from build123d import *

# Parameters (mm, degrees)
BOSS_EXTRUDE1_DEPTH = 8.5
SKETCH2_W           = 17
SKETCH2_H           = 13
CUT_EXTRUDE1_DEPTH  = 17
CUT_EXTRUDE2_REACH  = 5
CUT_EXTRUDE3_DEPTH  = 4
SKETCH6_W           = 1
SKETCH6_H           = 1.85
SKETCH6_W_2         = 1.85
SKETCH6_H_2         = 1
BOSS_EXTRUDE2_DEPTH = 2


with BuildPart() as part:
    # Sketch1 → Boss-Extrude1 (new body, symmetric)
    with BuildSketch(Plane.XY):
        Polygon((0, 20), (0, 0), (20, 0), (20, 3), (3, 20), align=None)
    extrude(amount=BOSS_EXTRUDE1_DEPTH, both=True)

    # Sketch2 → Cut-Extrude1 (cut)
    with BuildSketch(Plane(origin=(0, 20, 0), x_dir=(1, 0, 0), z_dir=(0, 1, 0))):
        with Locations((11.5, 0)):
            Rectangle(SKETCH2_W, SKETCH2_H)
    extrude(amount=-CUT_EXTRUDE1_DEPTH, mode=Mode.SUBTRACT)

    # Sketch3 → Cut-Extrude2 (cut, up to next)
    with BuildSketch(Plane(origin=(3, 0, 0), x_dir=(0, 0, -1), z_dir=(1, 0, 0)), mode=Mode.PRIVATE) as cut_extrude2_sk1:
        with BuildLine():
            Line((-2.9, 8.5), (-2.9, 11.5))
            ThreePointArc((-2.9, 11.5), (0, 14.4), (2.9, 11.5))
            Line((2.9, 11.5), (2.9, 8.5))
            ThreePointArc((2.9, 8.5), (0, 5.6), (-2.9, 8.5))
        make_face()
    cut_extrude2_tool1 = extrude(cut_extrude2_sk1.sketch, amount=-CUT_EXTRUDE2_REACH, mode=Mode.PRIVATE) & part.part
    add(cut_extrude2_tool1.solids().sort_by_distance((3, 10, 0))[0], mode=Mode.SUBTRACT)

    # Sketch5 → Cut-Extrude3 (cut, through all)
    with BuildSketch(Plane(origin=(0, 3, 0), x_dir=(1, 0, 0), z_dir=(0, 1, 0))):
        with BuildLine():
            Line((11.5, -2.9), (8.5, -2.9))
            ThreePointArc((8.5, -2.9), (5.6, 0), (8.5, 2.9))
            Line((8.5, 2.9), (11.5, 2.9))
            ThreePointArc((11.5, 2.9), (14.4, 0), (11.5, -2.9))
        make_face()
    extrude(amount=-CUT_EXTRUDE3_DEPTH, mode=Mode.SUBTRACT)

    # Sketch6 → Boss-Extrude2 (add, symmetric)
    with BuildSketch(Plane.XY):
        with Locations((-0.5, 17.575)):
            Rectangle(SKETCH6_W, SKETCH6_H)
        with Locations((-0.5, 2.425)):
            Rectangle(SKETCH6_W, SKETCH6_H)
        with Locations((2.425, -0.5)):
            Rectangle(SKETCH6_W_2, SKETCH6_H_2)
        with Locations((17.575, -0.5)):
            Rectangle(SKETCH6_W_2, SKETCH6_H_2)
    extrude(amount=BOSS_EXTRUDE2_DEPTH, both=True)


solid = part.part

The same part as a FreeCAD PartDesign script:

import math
import FreeCAD as App
import Part
import Sketcher

V = App.Vector


def add_polygon(sketch, points):
    """Adds a closed chain of lines whose ends are joined by coincident constraints."""
    first, n = sketch.GeometryCount, len(points)
    for a, b in zip(points, points[1:] + points[:1]):
        sketch.addGeometry(Part.LineSegment(App.Vector(*a, 0), App.Vector(*b, 0)), False)
    for i in range(n):
        sketch.addConstraint(Sketcher.Constraint("Coincident", first + i, 2, first + (i + 1) % n, 1))

doc = App.newDocument("Part")
body = doc.addObject("PartDesign::Body", "Body")

# Sketch on XY plane
sketch1 = doc.addObject("Sketcher::SketchObject", "Sketch")
body.addObject(sketch1)
sketch1.AttachmentSupport = (doc.XY_Plane, [""])
sketch1.MapMode = "FlatFace"
add_polygon(sketch1, [(0, 20), (0, 0), (20, 0), (20, 3), (3, 20)])  # lines 0-4
sketch1.addConstraint(Sketcher.Constraint("Vertical", 0))
sketch1.addConstraint(Sketcher.Constraint("Horizontal", 1))
sketch1.addConstraint(Sketcher.Constraint("Vertical", 2))
sketch1.addConstraint(Sketcher.Constraint("Horizontal", 4))
sketch1.addConstraint(Sketcher.Constraint("Coincident", 0, 2, -1, 1))
sketch1.addConstraint(Sketcher.Constraint("Equal", 1, 0))
sketch1.addConstraint(Sketcher.Constraint("Equal", 4, 2))
sketch1.addConstraint(Sketcher.Constraint("DistanceX", 1, 1, 1, 2, 20.0))
sketch1.addConstraint(Sketcher.Constraint("DistanceX", 4, 2, 4, 1, 3.0))
pad1 = doc.addObject("PartDesign::Pad", "Pad")
body.addObject(pad1)
pad1.Profile = sketch1
pad1.Length = 17
pad1.Midplane = True

# Sketch on XZ plane
sketch2 = doc.addObject("Sketcher::SketchObject", "Sketch001")
body.addObject(sketch2)
sketch2.AttachmentSupport = (doc.XZ_Plane, [""])
sketch2.MapMode = "FlatFace"
sketch2.AttachmentOffset = App.Placement(V(0, 0, -20), App.Rotation())
add_polygon(sketch2, [(3, -6), (3, 6), (20, 6), (20, -6)])  # lines 0-3
sketch2.addConstraint(Sketcher.Constraint("Vertical", 0))
sketch2.addConstraint(Sketcher.Constraint("Horizontal", 1))
sketch2.addConstraint(Sketcher.Constraint("Vertical", 2))
sketch2.addConstraint(Sketcher.Constraint("Horizontal", 3))
sketch2.addConstraint(Sketcher.Constraint("DistanceX", 1, 1, 1, 2, 17.0))
sketch2.addConstraint(Sketcher.Constraint("DistanceY", 0, 1, 0, 2, 13.0))
sketch2.addConstraint(Sketcher.Constraint("DistanceX", -1, 1, 0, 2, 3.0))
sketch2.addConstraint(Sketcher.Constraint("DistanceY", -1, 1, 0, 2, 6.5))
pocket1 = doc.addObject("PartDesign::Pocket", "Pocket")
body.addObject(pocket1)
pocket1.Profile = sketch2
pocket1.Length = 17
pocket1.Reversed = True

# Sketch on YZ plane
sketch3 = doc.addObject("Sketcher::SketchObject", "Sketch002")
body.addObject(sketch3)
sketch3.AttachmentSupport = (doc.YZ_Plane, [""])
sketch3.MapMode = "FlatFace"
sketch3.AttachmentOffset = App.Placement(V(0, 0, 3), App.Rotation())
sketch3.addGeometry(Part.LineSegment(V(11.5, 2.9, 0), V(8.5, 2.9, 0)), False)
sketch3.addGeometry(Part.ArcOfCircle(Part.Circle(V(8.5, 0, 0), V(0, 0, 1), 2.9), math.radians(90), math.radians(270)), False)
sketch3.addGeometry(Part.LineSegment(V(8.5, -2.9, 0), V(11.5, -2.9, 0)), False)
sketch3.addGeometry(Part.ArcOfCircle(Part.Circle(V(11.5, 0, 0), V(0, 0, 1), 2.9), math.radians(-90), math.radians(90)), False)
sketch3.addConstraint(Sketcher.Constraint("Tangent", 0, 2, 1, 1))
sketch3.addConstraint(Sketcher.Constraint("Tangent", 1, 2, 2, 1))
sketch3.addConstraint(Sketcher.Constraint("Tangent", 2, 2, 3, 1))
sketch3.addConstraint(Sketcher.Constraint("Tangent", 3, 2, 0, 1))
sketch3.addConstraint(Sketcher.Constraint("Horizontal", 0))
sketch3.addConstraint(Sketcher.Constraint("Horizontal", 2))
sketch3.addConstraint(Sketcher.Constraint("PointOnObject", 1, 3, -1))
sketch3.addConstraint(Sketcher.Constraint("Radius", 1, 2.9))
sketch3.addConstraint(Sketcher.Constraint("DistanceX", 0, 2, 0, 1, 3.0))
sketch3.addConstraint(Sketcher.Constraint("DistanceX", -1, 1, 1, 3, 8.5))
pocket2 = doc.addObject("PartDesign::Pocket", "Pocket001")
body.addObject(pocket2)
pocket2.Profile = sketch3
pocket2.Type = "UpToFirst"

# Sketch on XZ plane
sketch4 = doc.addObject("Sketcher::SketchObject", "Sketch003")
body.addObject(sketch4)
sketch4.AttachmentSupport = (doc.XZ_Plane, [""])
sketch4.MapMode = "FlatFace"
sketch4.AttachmentOffset = App.Placement(V(0, 0, -3), App.Rotation())
sketch4.addGeometry(Part.LineSegment(V(8.5, 2.9, 0), V(11.5, 2.9, 0)), False)
sketch4.addGeometry(Part.ArcOfCircle(Part.Circle(V(11.5, 0, 0), V(0, 0, 1), 2.9), math.radians(-90), math.radians(90)), False)
sketch4.addGeometry(Part.LineSegment(V(11.5, -2.9, 0), V(8.5, -2.9, 0)), False)
sketch4.addGeometry(Part.ArcOfCircle(Part.Circle(V(8.5, 0, 0), V(0, 0, 1), 2.9), math.radians(90), math.radians(270)), False)
sketch4.addConstraint(Sketcher.Constraint("Tangent", 0, 2, 1, 2))
sketch4.addConstraint(Sketcher.Constraint("Tangent", 1, 1, 2, 1))
sketch4.addConstraint(Sketcher.Constraint("Tangent", 2, 2, 3, 2))
sketch4.addConstraint(Sketcher.Constraint("Tangent", 3, 1, 0, 1))
sketch4.addConstraint(Sketcher.Constraint("Horizontal", 0))
sketch4.addConstraint(Sketcher.Constraint("Horizontal", 2))
sketch4.addConstraint(Sketcher.Constraint("PointOnObject", 1, 3, -1))
sketch4.addConstraint(Sketcher.Constraint("Radius", 1, 2.9))
sketch4.addConstraint(Sketcher.Constraint("DistanceX", 0, 1, 0, 2, 3.0))
sketch4.addConstraint(Sketcher.Constraint("DistanceX", -1, 1, 1, 3, 11.5))
pocket3 = doc.addObject("PartDesign::Pocket", "Pocket002")
body.addObject(pocket3)
pocket3.Profile = sketch4
pocket3.Type = "ThroughAll"
pocket3.Reversed = True

# Sketch on XY plane
sketch5 = doc.addObject("Sketcher::SketchObject", "Sketch004")
body.addObject(sketch5)
sketch5.AttachmentSupport = (doc.XY_Plane, [""])
sketch5.MapMode = "FlatFace"
add_polygon(sketch5, [(-1, 18.5), (-1, 16.6), (0, 16.6), (0, 18.5)])  # lines 0-3
add_polygon(sketch5, [(-1, 3.4), (-1, 1.5), (0, 1.5), (0, 3.4)])  # lines 4-7
add_polygon(sketch5, [(1.5, 0), (1.5, -1), (3.4, -1), (3.4, 0)])  # lines 8-11
add_polygon(sketch5, [(16.6, 0), (16.6, -1), (18.5, -1), (18.5, 0)])  # lines 12-15
sketch5.addConstraint(Sketcher.Constraint("Vertical", 0))
sketch5.addConstraint(Sketcher.Constraint("Horizontal", 1))
sketch5.addConstraint(Sketcher.Constraint("Vertical", 2))
sketch5.addConstraint(Sketcher.Constraint("Horizontal", 3))
sketch5.addConstraint(Sketcher.Constraint("Vertical", 4))
sketch5.addConstraint(Sketcher.Constraint("Horizontal", 5))
sketch5.addConstraint(Sketcher.Constraint("Vertical", 6))
sketch5.addConstraint(Sketcher.Constraint("Horizontal", 7))
sketch5.addConstraint(Sketcher.Constraint("Vertical", 8))
sketch5.addConstraint(Sketcher.Constraint("Horizontal", 9))
sketch5.addConstraint(Sketcher.Constraint("Vertical", 10))
sketch5.addConstraint(Sketcher.Constraint("Horizontal", 11))
sketch5.addConstraint(Sketcher.Constraint("Vertical", 12))
sketch5.addConstraint(Sketcher.Constraint("Horizontal", 13))
sketch5.addConstraint(Sketcher.Constraint("Vertical", 14))
sketch5.addConstraint(Sketcher.Constraint("Horizontal", 15))
sketch5.addConstraint(Sketcher.Constraint("PointOnObject", 1, 2, -2))
sketch5.addConstraint(Sketcher.Constraint("PointOnObject", 5, 2, -2))
sketch5.addConstraint(Sketcher.Constraint("PointOnObject", 10, 2, -1))
sketch5.addConstraint(Sketcher.Constraint("PointOnObject", 14, 2, -1))
sketch5.addConstraint(Sketcher.Constraint("Horizontal", 9, 2, 12, 2))
sketch5.addConstraint(Sketcher.Constraint("Vertical", 3, 2, 4, 2))
sketch5.addConstraint(Sketcher.Constraint("Equal", 11, 13))
sketch5.addConstraint(Sketcher.Constraint("Equal", 15, 0))
sketch5.addConstraint(Sketcher.Constraint("Equal", 2, 4))
sketch5.addConstraint(Sketcher.Constraint("Equal", 7, 8))
sketch5.addConstraint(Sketcher.Constraint("DistanceX", 1, 1, 1, 2, 1.0))
sketch5.addConstraint(Sketcher.Constraint("DistanceY", 4, 2, 3, 2, 17.0))
sketch5.addConstraint(Sketcher.Constraint("DistanceX", 8, 2, 13, 2, 17.0))
sketch5.addConstraint(Sketcher.Constraint("DistanceX", 9, 1, 9, 2, 1.85))
sketch5.addConstraint(Sketcher.Constraint("DistanceY", -1, 1, 2, 2, 18.5))
sketch5.addConstraint(Sketcher.Constraint("DistanceX", -1, 1, 8, 2, 1.5))
pad2 = doc.addObject("PartDesign::Pad", "Pad001")
body.addObject(pad2)
pad2.Profile = sketch5
pad2.Length = 4
pad2.Midplane = True

doc.recompute()
